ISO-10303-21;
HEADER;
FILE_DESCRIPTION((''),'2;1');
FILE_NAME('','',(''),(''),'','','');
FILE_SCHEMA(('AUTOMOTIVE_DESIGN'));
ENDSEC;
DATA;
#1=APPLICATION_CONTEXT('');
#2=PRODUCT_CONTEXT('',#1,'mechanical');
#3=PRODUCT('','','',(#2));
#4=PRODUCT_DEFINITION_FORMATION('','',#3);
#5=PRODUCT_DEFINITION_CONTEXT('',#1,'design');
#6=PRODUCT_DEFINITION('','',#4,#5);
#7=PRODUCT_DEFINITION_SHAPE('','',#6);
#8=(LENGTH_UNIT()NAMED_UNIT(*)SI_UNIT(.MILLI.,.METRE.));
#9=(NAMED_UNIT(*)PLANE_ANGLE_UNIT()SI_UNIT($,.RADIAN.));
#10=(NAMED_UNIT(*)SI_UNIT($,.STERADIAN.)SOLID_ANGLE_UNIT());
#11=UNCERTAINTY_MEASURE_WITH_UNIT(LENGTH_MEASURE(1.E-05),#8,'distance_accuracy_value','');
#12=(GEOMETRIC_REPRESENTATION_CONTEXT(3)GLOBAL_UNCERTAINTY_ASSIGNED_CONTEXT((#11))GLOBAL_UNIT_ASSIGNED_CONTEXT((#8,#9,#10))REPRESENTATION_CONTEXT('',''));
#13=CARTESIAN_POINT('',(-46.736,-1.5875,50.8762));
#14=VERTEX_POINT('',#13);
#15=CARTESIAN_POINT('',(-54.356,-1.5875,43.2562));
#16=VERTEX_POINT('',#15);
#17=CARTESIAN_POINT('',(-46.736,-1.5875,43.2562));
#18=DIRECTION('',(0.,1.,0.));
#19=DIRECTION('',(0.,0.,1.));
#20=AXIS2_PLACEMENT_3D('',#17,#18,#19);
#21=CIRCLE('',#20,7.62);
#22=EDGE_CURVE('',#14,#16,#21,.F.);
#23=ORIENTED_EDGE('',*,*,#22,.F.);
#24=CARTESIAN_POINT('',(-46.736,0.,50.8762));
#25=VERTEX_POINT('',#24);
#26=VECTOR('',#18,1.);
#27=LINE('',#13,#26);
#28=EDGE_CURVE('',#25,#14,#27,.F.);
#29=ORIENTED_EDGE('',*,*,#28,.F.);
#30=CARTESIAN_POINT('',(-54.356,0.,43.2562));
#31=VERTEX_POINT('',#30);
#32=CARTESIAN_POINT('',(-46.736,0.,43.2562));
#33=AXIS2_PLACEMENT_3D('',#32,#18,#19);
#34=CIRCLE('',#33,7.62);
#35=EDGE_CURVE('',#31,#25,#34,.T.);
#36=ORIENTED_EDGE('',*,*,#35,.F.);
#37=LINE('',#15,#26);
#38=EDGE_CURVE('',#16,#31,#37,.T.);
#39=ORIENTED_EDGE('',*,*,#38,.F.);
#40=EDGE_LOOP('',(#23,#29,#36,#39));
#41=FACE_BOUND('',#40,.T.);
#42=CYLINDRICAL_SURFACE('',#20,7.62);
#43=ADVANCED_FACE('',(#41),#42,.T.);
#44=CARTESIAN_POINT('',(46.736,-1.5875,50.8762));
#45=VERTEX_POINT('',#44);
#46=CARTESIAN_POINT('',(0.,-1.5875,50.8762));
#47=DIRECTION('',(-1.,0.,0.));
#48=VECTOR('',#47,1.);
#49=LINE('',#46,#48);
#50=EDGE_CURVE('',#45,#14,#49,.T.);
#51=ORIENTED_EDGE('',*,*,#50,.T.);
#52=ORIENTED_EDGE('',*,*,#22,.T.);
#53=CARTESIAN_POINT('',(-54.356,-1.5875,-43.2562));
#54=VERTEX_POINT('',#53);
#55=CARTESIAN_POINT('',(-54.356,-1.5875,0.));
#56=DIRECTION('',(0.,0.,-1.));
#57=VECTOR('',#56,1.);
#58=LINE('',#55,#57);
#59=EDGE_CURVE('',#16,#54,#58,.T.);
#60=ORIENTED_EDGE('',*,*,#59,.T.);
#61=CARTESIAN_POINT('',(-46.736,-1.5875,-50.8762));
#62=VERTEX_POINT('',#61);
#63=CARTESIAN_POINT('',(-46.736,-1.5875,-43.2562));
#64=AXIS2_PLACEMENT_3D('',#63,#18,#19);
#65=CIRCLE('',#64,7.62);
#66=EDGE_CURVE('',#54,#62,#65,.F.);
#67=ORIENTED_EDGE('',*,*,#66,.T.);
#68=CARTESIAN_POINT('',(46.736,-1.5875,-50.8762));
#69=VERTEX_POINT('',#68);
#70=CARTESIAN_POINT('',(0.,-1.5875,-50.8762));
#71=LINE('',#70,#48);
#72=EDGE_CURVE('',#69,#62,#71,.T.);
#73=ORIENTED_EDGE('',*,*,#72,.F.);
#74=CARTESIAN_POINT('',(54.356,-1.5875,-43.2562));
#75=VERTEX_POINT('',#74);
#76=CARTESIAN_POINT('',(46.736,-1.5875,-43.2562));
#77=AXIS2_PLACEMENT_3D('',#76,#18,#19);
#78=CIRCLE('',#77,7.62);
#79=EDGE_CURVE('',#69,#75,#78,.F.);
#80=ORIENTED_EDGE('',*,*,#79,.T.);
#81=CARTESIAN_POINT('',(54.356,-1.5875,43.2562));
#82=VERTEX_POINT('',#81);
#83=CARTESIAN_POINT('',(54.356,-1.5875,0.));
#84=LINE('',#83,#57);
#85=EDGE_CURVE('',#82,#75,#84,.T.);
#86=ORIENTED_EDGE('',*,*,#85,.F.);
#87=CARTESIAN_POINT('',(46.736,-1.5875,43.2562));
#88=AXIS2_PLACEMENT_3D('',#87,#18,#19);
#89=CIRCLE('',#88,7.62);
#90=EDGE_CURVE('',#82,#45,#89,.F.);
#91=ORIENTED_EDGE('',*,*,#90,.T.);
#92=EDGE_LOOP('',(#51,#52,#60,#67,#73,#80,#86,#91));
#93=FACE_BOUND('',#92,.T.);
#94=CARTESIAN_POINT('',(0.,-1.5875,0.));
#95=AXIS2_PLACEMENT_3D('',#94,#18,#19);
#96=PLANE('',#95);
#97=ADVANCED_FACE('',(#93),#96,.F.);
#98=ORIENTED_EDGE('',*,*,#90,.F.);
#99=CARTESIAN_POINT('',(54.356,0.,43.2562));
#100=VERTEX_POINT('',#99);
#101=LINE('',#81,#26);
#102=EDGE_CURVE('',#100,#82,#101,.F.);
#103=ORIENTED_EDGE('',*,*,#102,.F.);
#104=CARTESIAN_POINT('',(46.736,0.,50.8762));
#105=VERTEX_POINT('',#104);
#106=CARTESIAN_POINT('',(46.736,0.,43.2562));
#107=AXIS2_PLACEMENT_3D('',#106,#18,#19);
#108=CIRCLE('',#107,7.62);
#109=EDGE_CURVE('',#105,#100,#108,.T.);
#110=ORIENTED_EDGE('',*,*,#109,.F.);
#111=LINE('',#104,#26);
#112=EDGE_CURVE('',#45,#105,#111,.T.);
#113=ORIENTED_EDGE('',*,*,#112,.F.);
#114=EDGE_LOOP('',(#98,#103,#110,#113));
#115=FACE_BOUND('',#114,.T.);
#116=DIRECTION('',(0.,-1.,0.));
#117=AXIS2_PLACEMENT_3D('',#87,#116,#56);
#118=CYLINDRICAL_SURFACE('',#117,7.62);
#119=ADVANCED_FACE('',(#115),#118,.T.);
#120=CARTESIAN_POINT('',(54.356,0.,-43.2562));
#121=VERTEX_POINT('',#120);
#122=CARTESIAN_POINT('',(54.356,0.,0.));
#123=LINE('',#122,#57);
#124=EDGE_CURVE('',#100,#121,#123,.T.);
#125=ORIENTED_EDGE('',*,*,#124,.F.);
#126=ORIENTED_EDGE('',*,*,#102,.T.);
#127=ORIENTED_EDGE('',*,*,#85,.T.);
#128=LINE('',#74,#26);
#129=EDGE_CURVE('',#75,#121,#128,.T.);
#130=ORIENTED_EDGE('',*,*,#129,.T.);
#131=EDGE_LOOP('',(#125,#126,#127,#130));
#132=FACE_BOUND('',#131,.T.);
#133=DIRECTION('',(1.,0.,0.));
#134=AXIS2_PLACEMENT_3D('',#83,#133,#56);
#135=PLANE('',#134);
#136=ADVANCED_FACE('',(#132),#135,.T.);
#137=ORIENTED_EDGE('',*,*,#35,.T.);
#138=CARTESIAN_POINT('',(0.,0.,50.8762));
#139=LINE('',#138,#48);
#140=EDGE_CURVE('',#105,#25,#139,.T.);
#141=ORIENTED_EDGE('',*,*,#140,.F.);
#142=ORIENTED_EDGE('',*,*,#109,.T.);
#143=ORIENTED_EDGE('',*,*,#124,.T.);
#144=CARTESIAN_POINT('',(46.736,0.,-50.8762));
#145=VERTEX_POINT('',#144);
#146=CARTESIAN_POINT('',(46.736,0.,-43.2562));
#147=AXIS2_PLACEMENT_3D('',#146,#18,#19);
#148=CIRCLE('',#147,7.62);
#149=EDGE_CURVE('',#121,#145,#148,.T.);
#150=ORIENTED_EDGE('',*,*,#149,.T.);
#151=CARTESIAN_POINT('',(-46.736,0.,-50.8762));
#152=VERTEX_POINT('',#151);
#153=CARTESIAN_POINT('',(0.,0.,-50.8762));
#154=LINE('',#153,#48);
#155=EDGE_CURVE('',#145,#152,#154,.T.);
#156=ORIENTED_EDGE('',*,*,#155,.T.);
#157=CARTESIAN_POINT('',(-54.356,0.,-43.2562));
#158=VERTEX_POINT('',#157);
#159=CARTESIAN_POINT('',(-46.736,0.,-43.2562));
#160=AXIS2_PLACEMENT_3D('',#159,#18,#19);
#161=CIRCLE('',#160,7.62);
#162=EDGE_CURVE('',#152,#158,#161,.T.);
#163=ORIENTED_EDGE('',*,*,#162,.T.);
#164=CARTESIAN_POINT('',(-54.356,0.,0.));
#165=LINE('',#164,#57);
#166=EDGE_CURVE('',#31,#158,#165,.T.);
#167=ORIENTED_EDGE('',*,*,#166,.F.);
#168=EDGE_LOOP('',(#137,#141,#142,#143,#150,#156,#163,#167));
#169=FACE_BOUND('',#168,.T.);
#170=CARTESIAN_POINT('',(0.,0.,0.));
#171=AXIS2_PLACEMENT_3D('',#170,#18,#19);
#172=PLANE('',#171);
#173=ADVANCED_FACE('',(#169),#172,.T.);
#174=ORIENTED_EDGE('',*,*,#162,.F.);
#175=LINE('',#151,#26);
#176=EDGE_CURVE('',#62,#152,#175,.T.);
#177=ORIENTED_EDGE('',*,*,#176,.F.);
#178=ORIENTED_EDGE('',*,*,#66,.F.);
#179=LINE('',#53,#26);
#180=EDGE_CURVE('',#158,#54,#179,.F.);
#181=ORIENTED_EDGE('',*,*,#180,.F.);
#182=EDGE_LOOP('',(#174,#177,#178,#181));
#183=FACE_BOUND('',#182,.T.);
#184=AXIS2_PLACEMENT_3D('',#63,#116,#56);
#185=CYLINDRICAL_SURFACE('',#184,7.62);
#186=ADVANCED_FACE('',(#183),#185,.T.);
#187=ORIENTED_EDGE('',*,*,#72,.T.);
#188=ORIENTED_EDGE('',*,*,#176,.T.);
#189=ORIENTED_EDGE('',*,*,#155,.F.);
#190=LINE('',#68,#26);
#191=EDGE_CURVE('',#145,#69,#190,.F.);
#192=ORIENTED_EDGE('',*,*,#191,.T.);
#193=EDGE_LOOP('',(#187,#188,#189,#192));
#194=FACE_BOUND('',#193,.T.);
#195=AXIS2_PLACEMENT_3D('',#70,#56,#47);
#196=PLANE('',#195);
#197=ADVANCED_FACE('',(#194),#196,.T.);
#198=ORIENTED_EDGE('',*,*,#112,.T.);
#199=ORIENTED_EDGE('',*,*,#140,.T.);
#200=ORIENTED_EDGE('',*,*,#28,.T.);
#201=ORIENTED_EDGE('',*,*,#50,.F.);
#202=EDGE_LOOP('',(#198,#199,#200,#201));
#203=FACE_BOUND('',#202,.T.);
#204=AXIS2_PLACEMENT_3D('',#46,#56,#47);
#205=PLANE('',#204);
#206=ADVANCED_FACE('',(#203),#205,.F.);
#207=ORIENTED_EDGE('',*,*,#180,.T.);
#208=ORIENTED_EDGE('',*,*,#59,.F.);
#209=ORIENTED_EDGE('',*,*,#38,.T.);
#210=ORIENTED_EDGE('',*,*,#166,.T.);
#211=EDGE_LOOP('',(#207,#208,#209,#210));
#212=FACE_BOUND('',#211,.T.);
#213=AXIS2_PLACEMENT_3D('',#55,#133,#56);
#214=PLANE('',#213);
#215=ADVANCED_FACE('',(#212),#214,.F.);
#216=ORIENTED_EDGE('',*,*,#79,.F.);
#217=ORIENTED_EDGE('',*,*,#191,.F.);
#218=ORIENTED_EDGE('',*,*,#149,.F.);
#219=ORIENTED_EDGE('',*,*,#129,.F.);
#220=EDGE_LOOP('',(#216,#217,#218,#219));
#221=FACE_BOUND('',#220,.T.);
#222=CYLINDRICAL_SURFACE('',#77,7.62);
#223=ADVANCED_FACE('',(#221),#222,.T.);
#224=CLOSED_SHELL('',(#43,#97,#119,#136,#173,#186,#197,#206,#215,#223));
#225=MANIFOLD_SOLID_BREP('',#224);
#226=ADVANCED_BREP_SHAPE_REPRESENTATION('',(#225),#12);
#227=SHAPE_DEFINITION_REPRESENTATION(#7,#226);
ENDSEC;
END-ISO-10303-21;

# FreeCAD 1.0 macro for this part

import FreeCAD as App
import Part
import Sketcher
from FreeCAD import Vector
Q = App.Units.Quantity


def edges_at(feature, points):
    """Names of the edges that pass closest to the given points."""
    edges = feature.Shape.Edges
    near = lambda p: min(range(len(edges)), key=lambda i: edges[i].distToShape(Part.Vertex(*p))[0])
    return sorted({f"Edge{near(p) + 1}" for p in points})

doc = App.newDocument("Part")
params = doc.addObject("Spreadsheet::Sheet", "Params")
for row, (alias, value) in enumerate([
    ("sketch1_width", "4.28 in"),
    ("sketch1_height", "4.006 in"),
    ("pad1_length", "0.0625 in"),
    ("fillet_radius", "0.3 in"),
], start=1):
    params.set(f"A{row}", alias)
    params.set(f"B{row}", "=" + value)
    params.setAlias(f"B{row}", alias)

body = doc.addObject("PartDesign::Body", "Body")

# Sketch on XZ plane
sketch1 = doc.addObject("Sketcher::SketchObject", "Sketch")
body.addObject(sketch1)
sketch1.AttachmentSupport = (doc.XZ_Plane, [""])
sketch1.MapMode = "FlatFace"
sketch1.addGeometry(Part.LineSegment(Vector(-54, -51, 0), Vector(-54, 51, 0)), False)
sketch1.addGeometry(Part.LineSegment(Vector(-54, 51, 0), Vector(54, 51, 0)), False)
sketch1.addGeometry(Part.LineSegment(Vector(54, 51, 0), Vector(54, -51, 0)), False)
sketch1.addGeometry(Part.LineSegment(Vector(54, -51, 0), Vector(-54, -51, 0)), False)
sketch1.addConstraint(Sketcher.Constraint("Coincident", 0, 2, 1, 1))
sketch1.addConstraint(Sketcher.Constraint("Coincident", 1, 2, 2, 1))
sketch1.addConstraint(Sketcher.Constraint("Coincident", 2, 2, 3, 1))
sketch1.addConstraint(Sketcher.Constraint("Coincident", 3, 2, 0, 1))
sketch1.addConstraint(Sketcher.Constraint("Vertical", 0))
sketch1.addConstraint(Sketcher.Constraint("Horizontal", 1))
sketch1.addConstraint(Sketcher.Constraint("Vertical", 2))
sketch1.addConstraint(Sketcher.Constraint("Horizontal", 3))
sketch1.addConstraint(Sketcher.Constraint("Symmetric", 0, 2, 2, 2, -1, 1))
sketch1.addConstraint(Sketcher.Constraint("DistanceX", 1, 1, 1, 2, Q("4.28 in")))
sketch1.addConstraint(Sketcher.Constraint("DistanceY", 0, 1, 0, 2, Q("4.006 in")))
sketch1.setExpression("Constraints[9]", "Params.sketch1_width")
sketch1.setExpression("Constraints[10]", "Params.sketch1_height")
pad1 = doc.addObject("PartDesign::Pad", "Pad")
body.addObject(pad1)
pad1.Profile = sketch1
pad1.setExpression("Length", "Params.pad1_length")
doc.recompute()

fillet = doc.addObject("PartDesign::Fillet", "Fillet")
body.addObject(fillet)
fillet.Base = (pad1, edges_at(pad1, [
    (-54.356, -0.794, 50.876),
    (-54.356, -0.794, -50.876),
    (54.356, -0.794, -50.876),
    (54.356, -0.794, 50.876),
]))
fillet.setExpression("Radius", "Params.fillet_radius")

doc.recompute()
